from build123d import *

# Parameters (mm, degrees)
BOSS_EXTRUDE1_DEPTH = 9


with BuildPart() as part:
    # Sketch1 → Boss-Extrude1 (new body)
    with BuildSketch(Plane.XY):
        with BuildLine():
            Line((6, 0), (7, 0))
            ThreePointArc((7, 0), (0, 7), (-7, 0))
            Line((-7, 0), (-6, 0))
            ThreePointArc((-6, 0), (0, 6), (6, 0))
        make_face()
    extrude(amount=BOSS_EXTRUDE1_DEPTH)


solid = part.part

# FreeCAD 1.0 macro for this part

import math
import FreeCAD as App
import Part
import Sketcher
from FreeCAD import Vector

doc = App.newDocument("Part")
body = doc.addObject("PartDesign::Body", "Body")

# Sketch on XY plane
sketch1 = body.newObject("Sketcher::SketchObject", "Sketch")
sketch1.AttachmentSupport = (doc.getObject("XY_Plane"), [""])
sketch1.MapMode = "FlatFace"
sketch1.addGeometry([
    Part.LineSegment(Vector(6, 0, 0), Vector(7, 0, 0)),
    Part.ArcOfCircle(Part.Circle(Vector(0, 0, 0), Vector(0, 0, 1), 7), math.radians(0), math.radians(180)),
    Part.LineSegment(Vector(-7, 0, 0), Vector(-6, 0, 0)),
    Part.ArcOfCircle(Part.Circle(Vector(0, 0, 0), Vector(0, 0, 1), 6), math.radians(0), math.radians(180)),
], False)
sketch1.addConstraint([
    Sketcher.Constraint("Coincident", 0, 2, 1, 1),
    Sketcher.Constraint("Coincident", 1, 2, 2, 1),
    Sketcher.Constraint("Coincident", 2, 2, 3, 2),
    Sketcher.Constraint("Coincident", 3, 1, 0, 1),
    Sketcher.Constraint("Horizontal", 0),
    Sketcher.Constraint("Horizontal", 2),
    Sketcher.Constraint("Coincident", 1, 3, -1, 1),
    Sketcher.Constraint("Coincident", 3, 3, -1, 1),
    Sketcher.Constraint("PointOnObject", 0, 2, -1),
    Sketcher.Constraint("PointOnObject", 1, 2, -1),
    Sketcher.Constraint("Radius", 1, 7.0),
    Sketcher.Constraint("Radius", 3, 6.0),
])
pad1 = body.newObject("PartDesign::Pad", "Pad")
pad1.Profile = sketch1
pad1.Length = 9

doc.recompute()
